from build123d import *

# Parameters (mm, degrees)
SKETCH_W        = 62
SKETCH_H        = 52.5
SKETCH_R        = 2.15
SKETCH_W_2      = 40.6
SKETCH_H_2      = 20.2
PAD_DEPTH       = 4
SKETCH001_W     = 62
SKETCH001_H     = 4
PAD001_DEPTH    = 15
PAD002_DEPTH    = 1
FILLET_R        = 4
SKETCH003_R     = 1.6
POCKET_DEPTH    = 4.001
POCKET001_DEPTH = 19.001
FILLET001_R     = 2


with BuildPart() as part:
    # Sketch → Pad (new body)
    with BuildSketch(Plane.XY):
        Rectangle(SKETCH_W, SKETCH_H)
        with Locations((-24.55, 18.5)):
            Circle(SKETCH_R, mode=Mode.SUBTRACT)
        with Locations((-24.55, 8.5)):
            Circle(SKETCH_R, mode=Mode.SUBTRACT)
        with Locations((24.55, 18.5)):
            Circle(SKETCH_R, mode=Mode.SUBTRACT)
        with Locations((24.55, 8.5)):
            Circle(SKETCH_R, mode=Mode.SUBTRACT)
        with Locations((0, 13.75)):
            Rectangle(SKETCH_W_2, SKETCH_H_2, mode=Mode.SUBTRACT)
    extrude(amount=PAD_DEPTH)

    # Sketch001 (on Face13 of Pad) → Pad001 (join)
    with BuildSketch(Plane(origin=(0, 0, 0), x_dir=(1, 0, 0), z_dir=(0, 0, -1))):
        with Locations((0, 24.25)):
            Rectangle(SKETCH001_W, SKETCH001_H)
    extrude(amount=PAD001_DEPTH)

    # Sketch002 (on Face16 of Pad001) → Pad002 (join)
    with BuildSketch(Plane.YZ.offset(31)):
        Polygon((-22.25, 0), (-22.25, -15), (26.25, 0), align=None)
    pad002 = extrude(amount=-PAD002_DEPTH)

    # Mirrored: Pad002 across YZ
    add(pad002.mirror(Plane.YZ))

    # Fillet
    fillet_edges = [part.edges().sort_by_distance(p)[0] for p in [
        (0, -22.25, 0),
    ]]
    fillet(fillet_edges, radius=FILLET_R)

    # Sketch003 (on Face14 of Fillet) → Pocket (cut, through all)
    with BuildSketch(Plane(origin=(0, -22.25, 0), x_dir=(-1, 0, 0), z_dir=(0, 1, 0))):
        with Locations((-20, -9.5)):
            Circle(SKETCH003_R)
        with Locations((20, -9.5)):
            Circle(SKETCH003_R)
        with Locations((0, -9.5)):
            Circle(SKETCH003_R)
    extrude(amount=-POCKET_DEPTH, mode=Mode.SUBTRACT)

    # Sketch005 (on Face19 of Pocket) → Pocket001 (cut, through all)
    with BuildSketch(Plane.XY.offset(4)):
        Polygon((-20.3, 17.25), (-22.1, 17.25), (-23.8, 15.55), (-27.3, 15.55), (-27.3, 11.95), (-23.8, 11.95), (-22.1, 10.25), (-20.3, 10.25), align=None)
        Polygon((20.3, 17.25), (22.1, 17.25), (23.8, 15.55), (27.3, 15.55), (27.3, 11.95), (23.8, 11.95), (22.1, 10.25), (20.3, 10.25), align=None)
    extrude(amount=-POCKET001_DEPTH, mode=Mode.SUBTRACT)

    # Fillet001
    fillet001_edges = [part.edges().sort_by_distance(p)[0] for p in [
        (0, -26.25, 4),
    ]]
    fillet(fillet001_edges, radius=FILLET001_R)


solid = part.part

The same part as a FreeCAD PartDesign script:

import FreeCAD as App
import Part
import Sketcher

V = App.Vector


def edges_at(feature, points):
    """Names of the edges that pass closest to the given points."""
    edges = feature.Shape.Edges
    near = lambda p: min(range(len(edges)), key=lambda i: edges[i].distToShape(Part.Vertex(*p))[0])
    return sorted({f"Edge{near(p) + 1}" for p in points})


def add_polygon(sketch, points):
    """Adds a closed chain of lines whose ends are joined by coincident constraints."""
    first, n = sketch.GeometryCount, len(points)
    for a, b in zip(points, points[1:] + points[:1]):
        sketch.addGeometry(Part.LineSegment(App.Vector(*a, 0), App.Vector(*b, 0)), False)
    for i in range(n):
        sketch.addConstraint(Sketcher.Constraint("Coincident", first + i, 2, first + (i + 1) % n, 1))

doc = App.newDocument("Part")
body = doc.addObject("PartDesign::Body", "Body")

sketch1 = body.newObject("Sketcher::SketchObject", "Sketch")
sketch1.AttachmentSupport = (doc.getObject("XY_Plane"), [""])
sketch1.MapMode = "FlatFace"
add_polygon(sketch1, [(-31, 26.2), (-31, -26.2), (31, -26.2), (31, 26.2)])
sketch1.addGeometry(Part.Circle(V(-24.6, 8.5, 0), V(0, 0, 1), 2.1), False)
sketch1.addGeometry(Part.Circle(V(24.6, 8.5, 0), V(0, 0, 1), 2.1), False)
add_polygon(sketch1, [(20.3, 3.6), (-20.3, 3.6), (-20.3, 23.9), (20.3, 23.9)])
sketch1.addGeometry(Part.Circle(V(-24.6, 18.5, 0), V(0, 0, 1), 2.1), False)
sketch1.addGeometry(Part.Circle(V(24.6, 18.5, 0), V(0, 0, 1), 2.1), False)
sketch1.addConstraint(Sketcher.Constraint("Vertical", 0))
sketch1.addConstraint(Sketcher.Constraint("Horizontal", 1))
sketch1.addConstraint(Sketcher.Constraint("Vertical", 2))
sketch1.addConstraint(Sketcher.Constraint("Horizontal", 3))
sketch1.addConstraint(Sketcher.Constraint("Horizontal", 6))
sketch1.addConstraint(Sketcher.Constraint("Vertical", 7))
sketch1.addConstraint(Sketcher.Constraint("Horizontal", 8))
sketch1.addConstraint(Sketcher.Constraint("Vertical", 9))
sketch1.addConstraint(Sketcher.Constraint("Equal", 4, 5))
sketch1.addConstraint(Sketcher.Constraint("Equal", 5, 10))
sketch1.addConstraint(Sketcher.Constraint("Equal", 10, 11))
sketch1.addConstraint(Sketcher.Constraint("Symmetric", 0, 2, 2, 2, -1, 1))
sketch1.addConstraint(Sketcher.Constraint("Symmetric", 4, 3, 5, 3, -2))
sketch1.addConstraint(Sketcher.Constraint("Symmetric", 10, 3, 11, 3, -2))
sketch1.addConstraint(Sketcher.Constraint("Vertical", 4, 3, 10, 3))
sketch1.addConstraint(Sketcher.Constraint("Diameter", 4, 4.3))
sketch1.addConstraint(Sketcher.Constraint("DistanceX", 1, 1, 1, 2, 62.0))
sketch1.addConstraint(Sketcher.Constraint("DistanceX", 6, 2, 6, 1, 40.6))
sketch1.addConstraint(Sketcher.Constraint("DistanceY", 0, 2, 0, 1, 52.5))
sketch1.addConstraint(Sketcher.Constraint("DistanceY", 7, 1, 7, 2, 20.2))
sketch1.addConstraint(Sketcher.Constraint("DistanceY", 4, 3, 10, 3, 10.0))
sketch1.addConstraint(Sketcher.Constraint("DistanceY", -1, 1, 4, 3, 8.5))
sketch1.addConstraint(Sketcher.Constraint("DistanceX", 6, 2, -1, 1, 20.3))
sketch1.addConstraint(Sketcher.Constraint("DistanceX", 4, 3, 5, 3, 49.1))
sketch1.addConstraint(Sketcher.Constraint("DistanceY", 6, 2, 3, 2, 22.6))
pad1 = body.newObject("PartDesign::Pad", "Pad")
pad1.Profile = sketch1
pad1.Length = 4

sketch2 = body.newObject("Sketcher::SketchObject", "Sketch001")
sketch2.AttachmentSupport = (doc.getObject("XY_Plane"), [""])
sketch2.MapMode = "FlatFace"
add_polygon(sketch2, [(-31, -26.2), (-31, -22.2), (31, -22.2), (31, -26.2)])
sketch2.addConstraint(Sketcher.Constraint("Vertical", 0))
sketch2.addConstraint(Sketcher.Constraint("Horizontal", 1))
sketch2.addConstraint(Sketcher.Constraint("Vertical", 2))
sketch2.addConstraint(Sketcher.Constraint("Horizontal", 3))
sketch2.addConstraint(Sketcher.Constraint("DistanceX", 1, 1, 1, 2, 62.0))
sketch2.addConstraint(Sketcher.Constraint("DistanceY", 0, 1, 0, 2, 4.0))
sketch2.addConstraint(Sketcher.Constraint("DistanceX", 0, 2, -1, 1, 31.0))
sketch2.addConstraint(Sketcher.Constraint("DistanceY", 0, 2, -1, 1, 22.25))
pad2 = body.newObject("PartDesign::Pad", "Pad001")
pad2.Profile = sketch2
pad2.Length = 15
pad2.Reversed = True

sketch3 = body.newObject("Sketcher::SketchObject", "Sketch002")
sketch3.AttachmentSupport = (doc.getObject("YZ_Plane"), [""])
sketch3.MapMode = "FlatFace"
sketch3.AttachmentOffset = App.Placement(V(0, 0, 31), App.Rotation())
add_polygon(sketch3, [(-22, 0), (-22, -15), (26, 0)])
sketch3.addConstraint(Sketcher.Constraint("Vertical", 0))
sketch3.addConstraint(Sketcher.Constraint("Horizontal", 2))
sketch3.addConstraint(Sketcher.Constraint("PointOnObject", 1, 2, -1))
sketch3.addConstraint(Sketcher.Constraint("DistanceY", 0, 2, 0, 1, 15.0))
sketch3.addConstraint(Sketcher.Constraint("DistanceX", 2, 2, 2, 1, 48.5))
sketch3.addConstraint(Sketcher.Constraint("DistanceX", 0, 2, -1, 1, 22.25))
pad3 = body.newObject("PartDesign::Pad", "Pad002")
pad3.Profile = sketch3
pad3.Length = 1
pad3.Reversed = True
doc.recompute()

mirrored = body.newObject("PartDesign::Mirrored", "Mirrored")
mirrored.Originals = [pad3]
mirrored.MirrorPlane = (doc.getObject("YZ_Plane"), [""])
body.Tip = mirrored
doc.recompute()

fillet = body.newObject("PartDesign::Fillet", "Fillet")
fillet.Base = (mirrored, edges_at(mirrored, [(0, -22.25, 0)]))
fillet.Radius = 4

sketch4 = body.newObject("Sketcher::SketchObject", "Sketch003")
sketch4.AttachmentSupport = (doc.getObject("XZ_Plane"), [""])
sketch4.MapMode = "FlatFace"
sketch4.AttachmentOffset = App.Placement(V(0, 0, 22.25), App.Rotation())
sketch4.addGeometry(Part.Circle(V(20, -9.5, 0), V(0, 0, 1), 1.6), False)
sketch4.addGeometry(Part.Circle(V(-20, -9.5, 0), V(0, 0, 1), 1.6), False)
sketch4.addGeometry(Part.Circle(V(0, -9.5, 0), V(0, 0, 1), 1.6), False)
sketch4.addConstraint(Sketcher.Constraint("Equal", 0, 1))
sketch4.addConstraint(Sketcher.Constraint("Equal", 1, 2))
sketch4.addConstraint(Sketcher.Constraint("Symmetric", 0, 3, 1, 3, -2))
sketch4.addConstraint(Sketcher.Constraint("PointOnObject", 2, 3, -2))
sketch4.addConstraint(Sketcher.Constraint("Horizontal", 1, 3, 2, 3))
sketch4.addConstraint(Sketcher.Constraint("Diameter", 0, 3.2))
sketch4.addConstraint(Sketcher.Constraint("DistanceX", -1, 1, 0, 3, 20.0))
sketch4.addConstraint(Sketcher.Constraint("DistanceY", 0, 3, -1, 1, 9.5))
pocket1 = body.newObject("PartDesign::Pocket", "Pocket")
pocket1.Profile = sketch4
pocket1.Type = "ThroughAll"
pocket1.Reversed = True

sketch5 = body.newObject("Sketcher::SketchObject", "Sketch004")
sketch5.AttachmentSupport = (doc.getObject("XY_Plane"), [""])
sketch5.MapMode = "FlatFace"
sketch5.AttachmentOffset = App.Placement(V(0, 0, 4), App.Rotation())
add_polygon(sketch5, [(-20.3, 17.2), (-22.1, 17.2), (-23.8, 15.6), (-27.3, 15.6), (-27.3, 11.9), (-23.8, 11.9), (-22.1, 10.2), (-20.3, 10.2)])
add_polygon(sketch5, [(22.1, 17.2), (20.3, 17.2), (20.3, 10.2), (22.1, 10.2), (23.8, 11.9), (27.3, 11.9), (27.3, 15.6), (23.8, 15.6)])
sketch5.addConstraint(Sketcher.Constraint("Horizontal", 0))
sketch5.addConstraint(Sketcher.Constraint("Horizontal", 2))
sketch5.addConstraint(Sketcher.Constraint("Vertical", 3))
sketch5.addConstraint(Sketcher.Constraint("Horizontal", 4))
sketch5.addConstraint(Sketcher.Constraint("Horizontal", 6))
sketch5.addConstraint(Sketcher.Constraint("Vertical", 7))
sketch5.addConstraint(Sketcher.Constraint("Horizontal", 8))
sketch5.addConstraint(Sketcher.Constraint("Vertical", 9))
sketch5.addConstraint(Sketcher.Constraint("Horizontal", 10))
sketch5.addConstraint(Sketcher.Constraint("Horizontal", 12))
sketch5.addConstraint(Sketcher.Constraint("Vertical", 13))
sketch5.addConstraint(Sketcher.Constraint("Horizontal", 14))
sketch5.addConstraint(Sketcher.Constraint("Symmetric", 7, 2, 8, 2, -2))
sketch5.addConstraint(Sketcher.Constraint("Symmetric", 5, 2, 10, 2, -2))
sketch5.addConstraint(Sketcher.Constraint("Symmetric", 4, 2, 11, 2, -2))
sketch5.addConstraint(Sketcher.Constraint("Symmetric", 2, 2, 13, 2, -2))
sketch5.addConstraint(Sketcher.Constraint("Perpendicular", 1, 5))
sketch5.addConstraint(Sketcher.Constraint("Perpendicular", 5, 11))
sketch5.addConstraint(Sketcher.Constraint("Perpendicular", 11, 15))
sketch5.addConstraint(Sketcher.Constraint("Vertical", 1, 2, 4, 2))
sketch5.addConstraint(Sketcher.Constraint("Vertical", 0, 2, 5, 2))
sketch5.addConstraint(Sketcher.Constraint("Vertical", 11, 2, 14, 2))
sketch5.addConstraint(Sketcher.Constraint("DistanceY", 7, 1, 7, 2, 7.0))
sketch5.addConstraint(Sketcher.Constraint("DistanceX", 0, 2, 0, 1, 1.8))
sketch5.addConstraint(Sketcher.Constraint("DistanceX", 2, 2, 2, 1, 3.5))
sketch5.addConstraint(Sketcher.Constraint("DistanceY", 3, 2, 3, 1, 3.6))
sketch5.addConstraint(Sketcher.Constraint("DistanceX", 0, 2, -1, 1, 22.1))
sketch5.addConstraint(Sketcher.Constraint("DistanceY", -1, 1, 0, 2, 17.25))
pocket2 = body.newObject("PartDesign::Pocket", "Pocket001")
pocket2.Profile = sketch5
pocket2.Type = "ThroughAll"
doc.recompute()

fillet2 = body.newObject("PartDesign::Fillet", "Fillet001")
fillet2.Base = (pocket2, edges_at(pocket2, [(0, -26.25, 4)]))
fillet2.Radius = 2

doc.recompute()
